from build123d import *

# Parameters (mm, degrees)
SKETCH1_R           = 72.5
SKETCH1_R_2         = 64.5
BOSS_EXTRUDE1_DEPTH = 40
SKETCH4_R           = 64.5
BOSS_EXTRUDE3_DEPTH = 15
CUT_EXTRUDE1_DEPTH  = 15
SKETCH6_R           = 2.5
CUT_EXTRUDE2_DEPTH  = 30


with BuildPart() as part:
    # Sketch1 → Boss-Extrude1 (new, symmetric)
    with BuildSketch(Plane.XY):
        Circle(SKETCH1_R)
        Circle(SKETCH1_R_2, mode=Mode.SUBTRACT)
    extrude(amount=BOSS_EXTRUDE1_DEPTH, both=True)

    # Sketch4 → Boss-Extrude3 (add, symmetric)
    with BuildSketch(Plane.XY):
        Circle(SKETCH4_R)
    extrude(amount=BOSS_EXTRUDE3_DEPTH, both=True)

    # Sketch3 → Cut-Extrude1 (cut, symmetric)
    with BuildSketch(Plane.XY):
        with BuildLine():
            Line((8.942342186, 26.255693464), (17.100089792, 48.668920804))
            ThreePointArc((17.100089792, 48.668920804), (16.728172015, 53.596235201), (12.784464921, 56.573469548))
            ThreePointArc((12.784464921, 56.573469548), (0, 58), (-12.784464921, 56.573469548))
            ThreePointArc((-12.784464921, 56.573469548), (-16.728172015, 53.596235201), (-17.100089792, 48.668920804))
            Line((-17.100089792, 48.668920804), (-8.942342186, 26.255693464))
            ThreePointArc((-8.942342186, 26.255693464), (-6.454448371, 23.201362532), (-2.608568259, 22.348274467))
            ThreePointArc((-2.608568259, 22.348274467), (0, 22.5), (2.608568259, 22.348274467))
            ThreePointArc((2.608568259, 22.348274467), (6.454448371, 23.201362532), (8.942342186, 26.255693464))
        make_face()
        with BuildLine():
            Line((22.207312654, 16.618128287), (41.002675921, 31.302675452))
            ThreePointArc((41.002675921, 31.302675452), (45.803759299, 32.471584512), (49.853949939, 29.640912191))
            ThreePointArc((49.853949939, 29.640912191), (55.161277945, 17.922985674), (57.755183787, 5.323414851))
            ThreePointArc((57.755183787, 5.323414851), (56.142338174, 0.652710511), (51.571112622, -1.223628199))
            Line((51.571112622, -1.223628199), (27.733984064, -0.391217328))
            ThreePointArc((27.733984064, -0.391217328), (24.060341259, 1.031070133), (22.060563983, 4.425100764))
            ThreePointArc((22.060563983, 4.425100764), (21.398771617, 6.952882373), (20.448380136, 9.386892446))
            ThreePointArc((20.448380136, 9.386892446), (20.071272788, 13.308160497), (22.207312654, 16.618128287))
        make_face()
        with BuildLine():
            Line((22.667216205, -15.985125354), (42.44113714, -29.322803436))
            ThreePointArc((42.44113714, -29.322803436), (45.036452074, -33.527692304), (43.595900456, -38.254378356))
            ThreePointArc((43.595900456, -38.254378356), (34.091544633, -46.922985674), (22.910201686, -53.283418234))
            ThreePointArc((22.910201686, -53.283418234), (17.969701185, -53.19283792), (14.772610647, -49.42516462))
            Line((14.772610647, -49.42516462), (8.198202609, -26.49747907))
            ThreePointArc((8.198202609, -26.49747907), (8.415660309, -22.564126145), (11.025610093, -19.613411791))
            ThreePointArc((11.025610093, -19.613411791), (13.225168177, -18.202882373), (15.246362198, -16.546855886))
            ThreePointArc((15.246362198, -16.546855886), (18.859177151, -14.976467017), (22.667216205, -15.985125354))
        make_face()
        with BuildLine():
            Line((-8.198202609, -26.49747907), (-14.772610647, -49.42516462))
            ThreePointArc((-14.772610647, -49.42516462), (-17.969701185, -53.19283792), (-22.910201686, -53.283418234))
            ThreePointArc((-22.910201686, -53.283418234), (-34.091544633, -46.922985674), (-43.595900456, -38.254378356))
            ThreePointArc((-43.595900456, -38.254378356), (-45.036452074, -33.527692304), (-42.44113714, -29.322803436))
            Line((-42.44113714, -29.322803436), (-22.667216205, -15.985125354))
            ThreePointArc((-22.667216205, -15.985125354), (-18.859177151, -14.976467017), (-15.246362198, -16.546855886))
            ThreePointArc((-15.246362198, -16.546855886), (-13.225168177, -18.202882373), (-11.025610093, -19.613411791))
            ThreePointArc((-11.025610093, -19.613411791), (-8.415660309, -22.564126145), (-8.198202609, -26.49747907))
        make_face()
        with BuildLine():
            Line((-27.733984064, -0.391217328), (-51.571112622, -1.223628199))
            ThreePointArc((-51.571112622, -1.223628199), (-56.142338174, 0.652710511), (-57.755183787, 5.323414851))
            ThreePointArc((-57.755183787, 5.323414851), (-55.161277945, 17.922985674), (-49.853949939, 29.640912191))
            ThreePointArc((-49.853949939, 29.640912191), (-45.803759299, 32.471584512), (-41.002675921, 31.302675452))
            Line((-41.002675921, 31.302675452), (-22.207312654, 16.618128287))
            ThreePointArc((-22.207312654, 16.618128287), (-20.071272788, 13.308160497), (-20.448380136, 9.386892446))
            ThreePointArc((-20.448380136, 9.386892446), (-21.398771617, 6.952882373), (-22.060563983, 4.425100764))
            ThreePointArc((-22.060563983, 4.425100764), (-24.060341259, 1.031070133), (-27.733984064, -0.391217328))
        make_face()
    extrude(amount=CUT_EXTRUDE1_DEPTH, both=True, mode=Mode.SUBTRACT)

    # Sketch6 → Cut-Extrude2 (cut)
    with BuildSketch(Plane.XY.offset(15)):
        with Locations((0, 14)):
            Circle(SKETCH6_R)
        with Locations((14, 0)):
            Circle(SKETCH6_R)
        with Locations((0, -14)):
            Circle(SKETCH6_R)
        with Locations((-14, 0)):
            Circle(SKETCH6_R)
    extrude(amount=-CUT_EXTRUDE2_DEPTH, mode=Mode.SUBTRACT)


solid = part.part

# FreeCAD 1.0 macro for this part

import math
import FreeCAD as App
import Part
import Sketcher
Q = App.Units.Quantity

doc = App.newDocument("Part")
body = doc.addObject("PartDesign::Body", "Body")

# Sketch on XY plane
sketch1 = body.newObject("Sketcher::SketchObject", "Sketch")
sketch1.AttachmentSupport = (doc.getObject("XY_Plane"), [""])
sketch1.MapMode = "FlatFace"
sketch1.addGeometry([
    Part.Circle(App.Vector(0, 0, 0), App.Vector(0, 0, 1), 72),
    Part.Circle(App.Vector(0, 0, 0), App.Vector(0, 0, 1), 64),
], False)
sketch1.addConstraint([
    Sketcher.Constraint("Coincident", 0, 3, -1, 1),
    Sketcher.Constraint("Coincident", 1, 3, -1, 1),
    Sketcher.Constraint("Diameter", 0, 145.0),
    Sketcher.Constraint("Diameter", 1, 129.0),
])
pad1 = body.newObject("PartDesign::Pad", "Pad")
pad1.Profile = sketch1
pad1.Length = 80
pad1.Midplane = True

# Sketch on XY plane
sketch2 = body.newObject("Sketcher::SketchObject", "Sketch001")
sketch2.AttachmentSupport = (doc.getObject("XY_Plane"), [""])
sketch2.MapMode = "FlatFace"
sketch2.addGeometry(Part.Circle(App.Vector(0, 0, 0), App.Vector(0, 0, 1), 64), False)
sketch2.addConstraint([
    Sketcher.Constraint("Coincident", 0, 3, -1, 1),
    Sketcher.Constraint("Diameter", 0, 129.0),
])
pad2 = body.newObject("PartDesign::Pad", "Pad001")
pad2.Profile = sketch2
pad2.Length = 30
pad2.Midplane = True

# Sketch on XY plane
sketch3 = body.newObject("Sketcher::SketchObject", "Sketch002")
sketch3.AttachmentSupport = (doc.getObject("XY_Plane"), [""])
sketch3.MapMode = "FlatFace"
sketch3.addGeometry([
    Part.LineSegment(App.Vector(9, 26, 0), App.Vector(17, 49, 0)),  # 0
    Part.ArcOfCircle(Part.Circle(App.Vector(11, 51, 0), App.Vector(0, 0, 1), 6), math.radians(-20), math.radians(77)),  # 1
    Part.ArcOfCircle(Part.Circle(App.Vector(0, 0, 0), App.Vector(0, 0, 1), 58), math.radians(77), math.radians(103)),  # 2
    Part.ArcOfCircle(Part.Circle(App.Vector(-11, 51, 0), App.Vector(0, 0, 1), 6), math.radians(103), math.radians(200)),  # 3
    Part.LineSegment(App.Vector(-17, 49, 0), App.Vector(-9, 26, 0)),  # 4
    Part.ArcOfCircle(Part.Circle(App.Vector(-3, 28, 0), App.Vector(0, 0, 1), 6), math.radians(-160), math.radians(-83)),  # 5
    Part.ArcOfCircle(Part.Circle(App.Vector(0, 0, 0), App.Vector(0, 0, 1), 23), math.radians(83.34), math.radians(96.66)),  # 6
    Part.ArcOfCircle(Part.Circle(App.Vector(3, 28, 0), App.Vector(0, 0, 1), 6), math.radians(-97), math.radians(-20)),  # 7
    Part.LineSegment(App.Vector(41, 31, 0), App.Vector(22, 17, 0)),  # 8
    Part.ArcOfCircle(Part.Circle(App.Vector(26, 12, 0), App.Vector(0, 0, 1), 6), math.radians(128), math.radians(205)),  # 9
    Part.ArcOfCircle(Part.Circle(App.Vector(0, 0, 0), App.Vector(0, 0, 1), 22), math.radians(11.34), math.radians(24.66)),  # 10
    Part.ArcOfCircle(Part.Circle(App.Vector(28, 6, 0), App.Vector(0, 0, 1), 6), math.radians(-169), math.radians(-92)),  # 11
    Part.LineSegment(App.Vector(28, 0, 0), App.Vector(52, -1, 0)),  # 12
    Part.ArcOfCircle(Part.Circle(App.Vector(52, 5, 0), App.Vector(0, 0, 1), 6), math.radians(-92), math.radians(5)),  # 13
    Part.ArcOfCircle(Part.Circle(App.Vector(0, 0, 0), App.Vector(0, 0, 1), 58), math.radians(5), math.radians(31)),  # 14
    Part.ArcOfCircle(Part.Circle(App.Vector(45, 27, 0), App.Vector(0, 0, 1), 6), math.radians(31), math.radians(128)),  # 15
    Part.LineSegment(App.Vector(42, -29, 0), App.Vector(23, -16, 0)),  # 16
    Part.ArcOfCircle(Part.Circle(App.Vector(19, -21, 0), App.Vector(0, 0, 1), 6), math.radians(56), math.radians(133)),  # 17
    Part.ArcOfCircle(Part.Circle(App.Vector(0, 0, 0), App.Vector(0, 0, 1), 23), math.radians(-60.66), math.radians(-47.34)),  # 18
    Part.ArcOfCircle(Part.Circle(App.Vector(14, -25, 0), App.Vector(0, 0, 1), 6), math.radians(119), math.radians(196)),  # 19
    Part.LineSegment(App.Vector(8, -26, 0), App.Vector(15, -49, 0)),  # 20
    Part.ArcOfCircle(Part.Circle(App.Vector(21, -48, 0), App.Vector(0, 0, 1), 6), math.radians(-164), math.radians(-67)),  # 21
    Part.ArcOfCircle(Part.Circle(App.Vector(0, 0, 0), App.Vector(0, 0, 1), 58), math.radians(-67), math.radians(-41)),  # 22
    Part.ArcOfCircle(Part.Circle(App.Vector(39, -34, 0), App.Vector(0, 0, 1), 6), math.radians(-41), math.radians(56)),  # 23
    Part.LineSegment(App.Vector(-15, -49, 0), App.Vector(-8, -26, 0)),  # 24
    Part.ArcOfCircle(Part.Circle(App.Vector(-14, -25, 0), App.Vector(0, 0, 1), 6), math.radians(-16), math.radians(61)),  # 25
    Part.ArcOfCircle(Part.Circle(App.Vector(0, 0, 0), App.Vector(0, 0, 1), 23), math.radians(-132.66), math.radians(-119.34)),  # 26
    Part.ArcOfCircle(Part.Circle(App.Vector(-19, -21, 0), App.Vector(0, 0, 1), 6), math.radians(47), math.radians(124)),  # 27
    Part.LineSegment(App.Vector(-23, -16, 0), App.Vector(-42, -29, 0)),  # 28
    Part.ArcOfCircle(Part.Circle(App.Vector(-39, -34, 0), App.Vector(0, 0, 1), 6), math.radians(124), math.radians(221)),  # 29
    Part.ArcOfCircle(Part.Circle(App.Vector(0, 0, 0), App.Vector(0, 0, 1), 58), math.radians(-139), math.radians(-113)),  # 30
    Part.ArcOfCircle(Part.Circle(App.Vector(-21, -48, 0), App.Vector(0, 0, 1), 6), math.radians(-113), math.radians(-16)),  # 31
    Part.LineSegment(App.Vector(-52, -1, 0), App.Vector(-28, 0, 0)),  # 32
    Part.ArcOfCircle(Part.Circle(App.Vector(-28, 6, 0), App.Vector(0, 0, 1), 6), math.radians(-88), math.radians(-11)),  # 33
    Part.ArcOfCircle(Part.Circle(App.Vector(0, 0, 0), App.Vector(0, 0, 1), 22), math.radians(155.34), math.radians(168.66)),  # 34
    Part.ArcOfCircle(Part.Circle(App.Vector(-26, 12, 0), App.Vector(0, 0, 1), 6), math.radians(-25), math.radians(52)),  # 35
    Part.LineSegment(App.Vector(-22, 17, 0), App.Vector(-41, 31, 0)),  # 36
    Part.ArcOfCircle(Part.Circle(App.Vector(-45, 27, 0), App.Vector(0, 0, 1), 6), math.radians(52), math.radians(149)),  # 37
    Part.ArcOfCircle(Part.Circle(App.Vector(0, 0, 0), App.Vector(0, 0, 1), 58), math.radians(149), math.radians(175)),  # 38
    Part.ArcOfCircle(Part.Circle(App.Vector(-52, 5, 0), App.Vector(0, 0, 1), 6), math.radians(175), math.radians(272)),  # 39
], False)
sketch3.addConstraint([
    Sketcher.Constraint("Tangent", 0, 2, 1, 1),
    Sketcher.Constraint("Tangent", 1, 2, 2, 1),
    Sketcher.Constraint("Tangent", 2, 2, 3, 1),
    Sketcher.Constraint("Tangent", 3, 2, 4, 1),
    Sketcher.Constraint("Tangent", 4, 2, 5, 1),
    Sketcher.Constraint("Tangent", 5, 2, 6, 2),
    Sketcher.Constraint("Tangent", 6, 1, 7, 1),
    Sketcher.Constraint("Tangent", 7, 2, 0, 1),
    Sketcher.Constraint("Tangent", 8, 2, 9, 1),
    Sketcher.Constraint("Tangent", 9, 2, 10, 2),
    Sketcher.Constraint("Tangent", 10, 1, 11, 1),
    Sketcher.Constraint("Tangent", 11, 2, 12, 1),
    Sketcher.Constraint("Tangent", 12, 2, 13, 1),
    Sketcher.Constraint("Tangent", 13, 2, 14, 1),
    Sketcher.Constraint("Tangent", 14, 2, 15, 1),
    Sketcher.Constraint("Tangent", 15, 2, 8, 1),
    Sketcher.Constraint("Tangent", 16, 2, 17, 1),
    Sketcher.Constraint("Tangent", 17, 2, 18, 2),
    Sketcher.Constraint("Tangent", 18, 1, 19, 1),
    Sketcher.Constraint("Tangent", 19, 2, 20, 1),
    Sketcher.Constraint("Tangent", 20, 2, 21, 1),
    Sketcher.Constraint("Tangent", 21, 2, 22, 1),
    Sketcher.Constraint("Tangent", 22, 2, 23, 1),
    Sketcher.Constraint("Tangent", 23, 2, 16, 1),
    Sketcher.Constraint("Tangent", 24, 2, 25, 1),
    Sketcher.Constraint("Tangent", 25, 2, 26, 2),
    Sketcher.Constraint("Tangent", 26, 1, 27, 1),
    Sketcher.Constraint("Tangent", 27, 2, 28, 1),
    Sketcher.Constraint("Tangent", 28, 2, 29, 1),
    Sketcher.Constraint("Tangent", 29, 2, 30, 1),
    Sketcher.Constraint("Tangent", 30, 2, 31, 1),
    Sketcher.Constraint("Tangent", 31, 2, 24, 1),
    Sketcher.Constraint("Tangent", 32, 2, 33, 1),
    Sketcher.Constraint("Tangent", 33, 2, 34, 2),
    Sketcher.Constraint("Tangent", 34, 1, 35, 1),
    Sketcher.Constraint("Tangent", 35, 2, 36, 1),
    Sketcher.Constraint("Tangent", 36, 2, 37, 1),
    Sketcher.Constraint("Tangent", 37, 2, 38, 1),
    Sketcher.Constraint("Tangent", 38, 2, 39, 1),
    Sketcher.Constraint("Tangent", 39, 2, 32, 1),
    Sketcher.Constraint("Coincident", 2, 3, -1, 1),
    Sketcher.Constraint("Coincident", 6, 3, -1, 1),
    Sketcher.Constraint("Coincident", 10, 3, -1, 1),
    Sketcher.Constraint("Coincident", 14, 3, -1, 1),
    Sketcher.Constraint("Coincident", 18, 3, -1, 1),
    Sketcher.Constraint("Coincident", 22, 3, -1, 1),
    Sketcher.Constraint("Coincident", 26, 3, -1, 1),
    Sketcher.Constraint("Coincident", 30, 3, -1, 1),
    Sketcher.Constraint("Coincident", 34, 3, -1, 1),
    Sketcher.Constraint("Coincident", 38, 3, -1, 1),
    Sketcher.Constraint("Equal", 1, 3),
    Sketcher.Constraint("Equal", 3, 5),
    Sketcher.Constraint("Equal", 5, 7),
    Sketcher.Constraint("Equal", 7, 9),
    Sketcher.Constraint("Equal", 6, 10),
    Sketcher.Constraint("Equal", 9, 11),
    Sketcher.Constraint("Equal", 11, 13),
    Sketcher.Constraint("Equal", 2, 14),
    Sketcher.Constraint("Equal", 13, 15),
    Sketcher.Constraint("Equal", 15, 17),
    Sketcher.Constraint("Equal", 10, 18),
    Sketcher.Constraint("Equal", 17, 19),
    Sketcher.Constraint("Equal", 19, 21),
    Sketcher.Constraint("Equal", 14, 22),
    Sketcher.Constraint("Equal", 21, 23),
    Sketcher.Constraint("Equal", 23, 25),
    Sketcher.Constraint("Equal", 18, 26),
    Sketcher.Constraint("Equal", 25, 27),
    Sketcher.Constraint("Equal", 27, 29),
    Sketcher.Constraint("Equal", 22, 30),
    Sketcher.Constraint("Equal", 29, 31),
    Sketcher.Constraint("Equal", 31, 33),
    Sketcher.Constraint("Equal", 26, 34),
    Sketcher.Constraint("Equal", 33, 35),
    Sketcher.Constraint("Equal", 35, 37),
    Sketcher.Constraint("Equal", 30, 38),
    Sketcher.Constraint("Equal", 37, 39),
    Sketcher.Constraint("Symmetric", 0, 2, 3, 2, -2),
    Sketcher.Constraint("Symmetric", 19, 2, 24, 2, -2),
    Sketcher.Constraint("Symmetric", 16, 2, 27, 2, -2),
    Sketcher.Constraint("Symmetric", 11, 2, 32, 2, -2),
    Sketcher.Constraint("Symmetric", 8, 2, 35, 2, -2),
    Sketcher.Constraint("Equal", 4, 8),
    Sketcher.Constraint("Equal", 8, 12),
    Sketcher.Constraint("Equal", 12, 16),
    Sketcher.Constraint("Equal", 16, 20),
    Sketcher.Constraint("Radius", 1, 6.0),
    Sketcher.Constraint("Radius", 2, 58.0),
    Sketcher.Constraint("Radius", 6, 22.5),
    Sketcher.Constraint("Angle", 0, Q("70 deg")),
    Sketcher.Constraint("Angle", 8, Q("-142 deg")),
    Sketcher.Constraint("Angle", 12, Q("-2 deg")),
    Sketcher.Constraint("Angle", 16, Q("146 deg")),
    Sketcher.Constraint("Angle", 20, Q("-74 deg")),
    Sketcher.Constraint("DistanceY", -1, 1, 10, 1, 4.425101),
])
pocket1 = body.newObject("PartDesign::Pocket", "Pocket")
pocket1.Profile = sketch3
pocket1.Length = 30
pocket1.Midplane = True

# Sketch on XY plane
sketch4 = body.newObject("Sketcher::SketchObject", "Sketch003")
sketch4.AttachmentSupport = (doc.getObject("XY_Plane"), [""])
sketch4.MapMode = "FlatFace"
sketch4.AttachmentOffset = App.Placement(App.Vector(0, 0, 15), App.Rotation())
sketch4.addGeometry([
    Part.Circle(App.Vector(0, 14, 0), App.Vector(0, 0, 1), 2.5),
    Part.Circle(App.Vector(14, 0, 0), App.Vector(0, 0, 1), 2.5),
    Part.Circle(App.Vector(0, -14, 0), App.Vector(0, 0, 1), 2.5),
    Part.Circle(App.Vector(-14, 0, 0), App.Vector(0, 0, 1), 2.5),
], False)
sketch4.addConstraint([
    Sketcher.Constraint("Equal", 0, 1),
    Sketcher.Constraint("Equal", 1, 2),
    Sketcher.Constraint("Equal", 2, 3),
    Sketcher.Constraint("Symmetric", 0, 3, 2, 3, -1, 1),
    Sketcher.Constraint("Symmetric", 1, 3, 3, 3, -1, 1),
    Sketcher.Constraint("PointOnObject", 0, 3, -2),
    Sketcher.Constraint("PointOnObject", 1, 3, -1),
    Sketcher.Constraint("Diameter", 0, 5.0),
    Sketcher.Constraint("DistanceY", -1, 1, 0, 3, 14.0),
    Sketcher.Constraint("DistanceX", -1, 1, 1, 3, 14.0),
])
pocket2 = body.newObject("PartDesign::Pocket", "Pocket001")
pocket2.Profile = sketch4
pocket2.Length = 30

doc.recompute()
